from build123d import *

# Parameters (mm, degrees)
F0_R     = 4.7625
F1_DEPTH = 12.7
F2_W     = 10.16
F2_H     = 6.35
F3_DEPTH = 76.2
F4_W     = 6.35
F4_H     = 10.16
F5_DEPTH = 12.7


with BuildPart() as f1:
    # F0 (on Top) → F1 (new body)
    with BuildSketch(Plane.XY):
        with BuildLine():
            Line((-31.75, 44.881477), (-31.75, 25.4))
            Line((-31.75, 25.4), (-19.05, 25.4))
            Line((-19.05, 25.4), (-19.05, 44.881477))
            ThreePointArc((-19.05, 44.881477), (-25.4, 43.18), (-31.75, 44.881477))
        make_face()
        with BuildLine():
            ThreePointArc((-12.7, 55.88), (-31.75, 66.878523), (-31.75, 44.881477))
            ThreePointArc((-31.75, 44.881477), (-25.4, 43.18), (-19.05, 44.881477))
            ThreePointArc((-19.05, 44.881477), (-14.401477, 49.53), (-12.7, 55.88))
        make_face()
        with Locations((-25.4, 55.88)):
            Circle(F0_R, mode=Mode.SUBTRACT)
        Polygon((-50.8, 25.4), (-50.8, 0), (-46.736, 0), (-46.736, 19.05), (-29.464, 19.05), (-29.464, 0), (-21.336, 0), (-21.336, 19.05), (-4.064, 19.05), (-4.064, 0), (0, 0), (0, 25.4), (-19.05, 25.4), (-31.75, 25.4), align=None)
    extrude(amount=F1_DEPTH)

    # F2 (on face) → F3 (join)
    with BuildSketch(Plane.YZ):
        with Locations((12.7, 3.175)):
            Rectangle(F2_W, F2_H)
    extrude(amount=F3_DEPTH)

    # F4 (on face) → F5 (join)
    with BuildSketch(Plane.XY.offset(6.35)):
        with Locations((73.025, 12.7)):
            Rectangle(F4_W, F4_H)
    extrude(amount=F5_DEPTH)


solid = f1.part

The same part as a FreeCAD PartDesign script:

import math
import FreeCAD as App
import Part
import Sketcher
from FreeCAD import Vector
Q = App.Units.Quantity

doc = App.newDocument("Part")
params = doc.addObject("Spreadsheet::Sheet", "Params")
for row, (alias, value) in enumerate([
    ("sketch1_radius", "0.5 in"),
    ("sketch1_height", "1 in"),
    ("sketch1_diameter", "0.375 in"),
    ("sketch1_width", "0.75 in"),
    ("sketch1_width2", "0.16 in"),
    ("pad1_length", "0.5 in"),
    ("sketch2_width", "0.4 in"),
    ("sketch2_height", "0.25 in"),
    ("pad2_length", "3 in"),
    ("sketch3_height", "0.4 in"),
    ("sketch3_width", "0.25 in"),
    ("pad3_length", "0.5 in"),
], start=1):
    params.set(f"A{row}", alias)
    params.set(f"B{row}", "=" + value)
    params.setAlias(f"B{row}", alias)

body = doc.addObject("PartDesign::Body", "Body")

sketch1 = body.newObject("Sketcher::SketchObject", "Sketch")
sketch1.AttachmentSupport = (doc.getObject("XY_Plane"), [""])
sketch1.MapMode = "FlatFace"
sketch1.addGeometry([
    Part.LineSegment(Vector(-31.8, 44.9, 0), Vector(-31.8, 25.4, 0)),
    Part.LineSegment(Vector(-31.8, 25.4, 0), Vector(-50.8, 25.4, 0)),
    Part.LineSegment(Vector(-50.8, 25.4, 0), Vector(-50.8, 0, 0)),
    Part.LineSegment(Vector(-50.8, 0, 0), Vector(-46.7, 0, 0)),
    Part.LineSegment(Vector(-46.7, 0, 0), Vector(-46.7, 19.1, 0)),
    Part.LineSegment(Vector(-46.7, 19.1, 0), Vector(-29.5, 19.1, 0)),
    Part.LineSegment(Vector(-29.5, 19.1, 0), Vector(-29.5, 0, 0)),
    Part.LineSegment(Vector(-29.5, 0, 0), Vector(-21.3, 0, 0)),
    Part.LineSegment(Vector(-21.3, 0, 0), Vector(-21.3, 19.1, 0)),
    Part.LineSegment(Vector(-21.3, 19.1, 0), Vector(-4.1, 19.1, 0)),
    Part.LineSegment(Vector(-4.1, 19.1, 0), Vector(-4.1, 0, 0)),
    Part.LineSegment(Vector(-4.1, 0, 0), Vector(0, 0, 0)),
    Part.LineSegment(Vector(0, 0, 0), Vector(0, 25.4, 0)),
    Part.LineSegment(Vector(0, 25.4, 0), Vector(-19.1, 25.4, 0)),
    Part.LineSegment(Vector(-19.1, 25.4, 0), Vector(-19.1, 44.9, 0)),
    Part.ArcOfCircle(Part.Circle(Vector(-25.4, 55.9, 0), Vector(0, 0, 1), 12.7), math.radians(-60), math.radians(0)),
    Part.ArcOfCircle(Part.Circle(Vector(-25.4, 55.9, 0), Vector(0, 0, 1), 12.7), math.radians(0), math.radians(240)),
    Part.Circle(Vector(-25.4, 55.9, 0), Vector(0, 0, 1), 4.8),
], False)
sketch1.addConstraint([
    Sketcher.Constraint("Coincident", 0, 2, 1, 1),
    Sketcher.Constraint("Coincident", 1, 2, 2, 1),
    Sketcher.Constraint("Coincident", 2, 2, 3, 1),
    Sketcher.Constraint("Coincident", 3, 2, 4, 1),
    Sketcher.Constraint("Coincident", 4, 2, 5, 1),
    Sketcher.Constraint("Coincident", 5, 2, 6, 1),
    Sketcher.Constraint("Coincident", 6, 2, 7, 1),
    Sketcher.Constraint("Coincident", 7, 2, 8, 1),
    Sketcher.Constraint("Coincident", 8, 2, 9, 1),
    Sketcher.Constraint("Coincident", 9, 2, 10, 1),
    Sketcher.Constraint("Coincident", 10, 2, 11, 1),
    Sketcher.Constraint("Coincident", 11, 2, 12, 1),
    Sketcher.Constraint("Coincident", 12, 2, 13, 1),
    Sketcher.Constraint("Coincident", 13, 2, 14, 1),
    Sketcher.Constraint("Coincident", 14, 2, 15, 1),
    Sketcher.Constraint("Tangent", 15, 2, 16, 1),
    Sketcher.Constraint("Coincident", 16, 2, 0, 1),
    Sketcher.Constraint("Vertical", 0),
    Sketcher.Constraint("Horizontal", 1),
    Sketcher.Constraint("Vertical", 2),
    Sketcher.Constraint("Horizontal", 3),
    Sketcher.Constraint("Vertical", 4),
    Sketcher.Constraint("Horizontal", 5),
    Sketcher.Constraint("Vertical", 6),
    Sketcher.Constraint("Horizontal", 7),
    Sketcher.Constraint("Vertical", 8),
    Sketcher.Constraint("Horizontal", 9),
    Sketcher.Constraint("Vertical", 10),
    Sketcher.Constraint("Horizontal", 11),
    Sketcher.Constraint("Vertical", 12),
    Sketcher.Constraint("Horizontal", 13),
    Sketcher.Constraint("Vertical", 14),
    Sketcher.Constraint("Coincident", 11, 2, -1, 1),
    Sketcher.Constraint("Coincident", 17, 3, 15, 3),
    Sketcher.Constraint("Equal", 15, 16),
    Sketcher.Constraint("PointOnObject", 2, 2, -1),
    Sketcher.Constraint("PointOnObject", 6, 2, -1),
    Sketcher.Constraint("Horizontal", 5, 2, 8, 2),
    Sketcher.Constraint("Horizontal", 1, 2, 12, 2),
    Sketcher.Constraint("Horizontal", 17, 3, 15, 2),
    Sketcher.Constraint("Horizontal", 14, 2, 16, 2),
    Sketcher.Constraint("Equal", 5, 9),
    Sketcher.Constraint("Equal", 3, 11),
    Sketcher.Constraint("Equal", 1, 13),
    Sketcher.Constraint("Equal", 13, 4),
    Sketcher.Constraint("Radius", 15, Q("0.5 in")),
    Sketcher.Constraint("DistanceY", 2, 2, 2, 1, Q("1 in")),
    Sketcher.Constraint("Diameter", 17, Q("0.375 in")),
    Sketcher.Constraint("DistanceX", 15, 3, -1, 1, Q("1 in")),
    Sketcher.Constraint("DistanceX", 3, 2, 7, 2, Q("1 in")),
    Sketcher.Constraint("DistanceX", 1, 2, 1, 1, Q("0.75 in")),
    Sketcher.Constraint("DistanceX", 3, 1, 3, 2, Q("0.16 in")),
    Sketcher.Constraint("DistanceY", -1, 1, 15, 3, Q("2.2 in")),
])
sketch1.setExpression("Constraints[45]", "Params.sketch1_radius")
sketch1.setExpression("Constraints[46]", "Params.sketch1_height")
sketch1.setExpression("Constraints[47]", "Params.sketch1_diameter")
sketch1.setExpression("Constraints[50]", "Params.sketch1_width")
sketch1.setExpression("Constraints[51]", "Params.sketch1_width2")
pad1 = body.newObject("PartDesign::Pad", "Pad")
pad1.Profile = sketch1
pad1.setExpression("Length", "Params.pad1_length")

sketch2 = body.newObject("Sketcher::SketchObject", "Sketch001")
sketch2.AttachmentSupport = (doc.getObject("YZ_Plane"), [""])
sketch2.MapMode = "FlatFace"
sketch2.addGeometry([
    Part.LineSegment(Vector(8, 6, 0), Vector(8, 0, 0)),
    Part.LineSegment(Vector(8, 0, 0), Vector(18, 0, 0)),
    Part.LineSegment(Vector(18, 0, 0), Vector(18, 6, 0)),
    Part.LineSegment(Vector(18, 6, 0), Vector(8, 6, 0)),
], False)
sketch2.addConstraint([
    Sketcher.Constraint("Coincident", 0, 2, 1, 1),
    Sketcher.Constraint("Coincident", 1, 2, 2, 1),
    Sketcher.Constraint("Coincident", 2, 2, 3, 1),
    Sketcher.Constraint("Coincident", 3, 2, 0, 1),
    Sketcher.Constraint("Vertical", 0),
    Sketcher.Constraint("Horizontal", 1),
    Sketcher.Constraint("Vertical", 2),
    Sketcher.Constraint("Horizontal", 3),
    Sketcher.Constraint("PointOnObject", 0, 2, -1),
    Sketcher.Constraint("DistanceX", 1, 1, 1, 2, Q("0.4 in")),
    Sketcher.Constraint("DistanceY", 0, 2, 0, 1, Q("0.25 in")),
    Sketcher.Constraint("DistanceX", -1, 1, 0, 2, Q("0.3 in")),
])
sketch2.setExpression("Constraints[9]", "Params.sketch2_width")
sketch2.setExpression("Constraints[10]", "Params.sketch2_height")
pad2 = body.newObject("PartDesign::Pad", "Pad001")
pad2.Profile = sketch2
pad2.setExpression("Length", "Params.pad2_length")

sketch3 = body.newObject("Sketcher::SketchObject", "Sketch002")
sketch3.AttachmentSupport = (doc.getObject("XY_Plane"), [""])
sketch3.MapMode = "FlatFace"
sketch3.AttachmentOffset = App.Placement(Vector(0, 0, 0.25 * 25.4), App.Rotation())
sketch3.addGeometry([
    Part.LineSegment(Vector(70, 18, 0), Vector(70, 8, 0)),
    Part.LineSegment(Vector(70, 8, 0), Vector(76, 8, 0)),
    Part.LineSegment(Vector(76, 8, 0), Vector(76, 18, 0)),
    Part.LineSegment(Vector(76, 18, 0), Vector(70, 18, 0)),
], False)
sketch3.addConstraint([
    Sketcher.Constraint("Coincident", 0, 2, 1, 1),
    Sketcher.Constraint("Coincident", 1, 2, 2, 1),
    Sketcher.Constraint("Coincident", 2, 2, 3, 1),
    Sketcher.Constraint("Coincident", 3, 2, 0, 1),
    Sketcher.Constraint("Vertical", 0),
    Sketcher.Constraint("Horizontal", 1),
    Sketcher.Constraint("Vertical", 2),
    Sketcher.Constraint("Horizontal", 3),
    Sketcher.Constraint("DistanceY", 0, 2, 0, 1, Q("0.4 in")),
    Sketcher.Constraint("DistanceX", -1, 1, 1, 2, Q("3 in")),
    Sketcher.Constraint("DistanceX", 1, 1, 1, 2, Q("0.25 in")),
    Sketcher.Constraint("DistanceY", -1, 1, 0, 2, Q("0.3 in")),
])
sketch3.setExpression("Constraints[8]", "Params.sketch3_height")
sketch3.setExpression("Constraints[10]", "Params.sketch3_width")
pad3 = body.newObject("PartDesign::Pad", "Pad002")
pad3.Profile = sketch3
pad3.setExpression("Length", "Params.pad3_length")

doc.recompute()
